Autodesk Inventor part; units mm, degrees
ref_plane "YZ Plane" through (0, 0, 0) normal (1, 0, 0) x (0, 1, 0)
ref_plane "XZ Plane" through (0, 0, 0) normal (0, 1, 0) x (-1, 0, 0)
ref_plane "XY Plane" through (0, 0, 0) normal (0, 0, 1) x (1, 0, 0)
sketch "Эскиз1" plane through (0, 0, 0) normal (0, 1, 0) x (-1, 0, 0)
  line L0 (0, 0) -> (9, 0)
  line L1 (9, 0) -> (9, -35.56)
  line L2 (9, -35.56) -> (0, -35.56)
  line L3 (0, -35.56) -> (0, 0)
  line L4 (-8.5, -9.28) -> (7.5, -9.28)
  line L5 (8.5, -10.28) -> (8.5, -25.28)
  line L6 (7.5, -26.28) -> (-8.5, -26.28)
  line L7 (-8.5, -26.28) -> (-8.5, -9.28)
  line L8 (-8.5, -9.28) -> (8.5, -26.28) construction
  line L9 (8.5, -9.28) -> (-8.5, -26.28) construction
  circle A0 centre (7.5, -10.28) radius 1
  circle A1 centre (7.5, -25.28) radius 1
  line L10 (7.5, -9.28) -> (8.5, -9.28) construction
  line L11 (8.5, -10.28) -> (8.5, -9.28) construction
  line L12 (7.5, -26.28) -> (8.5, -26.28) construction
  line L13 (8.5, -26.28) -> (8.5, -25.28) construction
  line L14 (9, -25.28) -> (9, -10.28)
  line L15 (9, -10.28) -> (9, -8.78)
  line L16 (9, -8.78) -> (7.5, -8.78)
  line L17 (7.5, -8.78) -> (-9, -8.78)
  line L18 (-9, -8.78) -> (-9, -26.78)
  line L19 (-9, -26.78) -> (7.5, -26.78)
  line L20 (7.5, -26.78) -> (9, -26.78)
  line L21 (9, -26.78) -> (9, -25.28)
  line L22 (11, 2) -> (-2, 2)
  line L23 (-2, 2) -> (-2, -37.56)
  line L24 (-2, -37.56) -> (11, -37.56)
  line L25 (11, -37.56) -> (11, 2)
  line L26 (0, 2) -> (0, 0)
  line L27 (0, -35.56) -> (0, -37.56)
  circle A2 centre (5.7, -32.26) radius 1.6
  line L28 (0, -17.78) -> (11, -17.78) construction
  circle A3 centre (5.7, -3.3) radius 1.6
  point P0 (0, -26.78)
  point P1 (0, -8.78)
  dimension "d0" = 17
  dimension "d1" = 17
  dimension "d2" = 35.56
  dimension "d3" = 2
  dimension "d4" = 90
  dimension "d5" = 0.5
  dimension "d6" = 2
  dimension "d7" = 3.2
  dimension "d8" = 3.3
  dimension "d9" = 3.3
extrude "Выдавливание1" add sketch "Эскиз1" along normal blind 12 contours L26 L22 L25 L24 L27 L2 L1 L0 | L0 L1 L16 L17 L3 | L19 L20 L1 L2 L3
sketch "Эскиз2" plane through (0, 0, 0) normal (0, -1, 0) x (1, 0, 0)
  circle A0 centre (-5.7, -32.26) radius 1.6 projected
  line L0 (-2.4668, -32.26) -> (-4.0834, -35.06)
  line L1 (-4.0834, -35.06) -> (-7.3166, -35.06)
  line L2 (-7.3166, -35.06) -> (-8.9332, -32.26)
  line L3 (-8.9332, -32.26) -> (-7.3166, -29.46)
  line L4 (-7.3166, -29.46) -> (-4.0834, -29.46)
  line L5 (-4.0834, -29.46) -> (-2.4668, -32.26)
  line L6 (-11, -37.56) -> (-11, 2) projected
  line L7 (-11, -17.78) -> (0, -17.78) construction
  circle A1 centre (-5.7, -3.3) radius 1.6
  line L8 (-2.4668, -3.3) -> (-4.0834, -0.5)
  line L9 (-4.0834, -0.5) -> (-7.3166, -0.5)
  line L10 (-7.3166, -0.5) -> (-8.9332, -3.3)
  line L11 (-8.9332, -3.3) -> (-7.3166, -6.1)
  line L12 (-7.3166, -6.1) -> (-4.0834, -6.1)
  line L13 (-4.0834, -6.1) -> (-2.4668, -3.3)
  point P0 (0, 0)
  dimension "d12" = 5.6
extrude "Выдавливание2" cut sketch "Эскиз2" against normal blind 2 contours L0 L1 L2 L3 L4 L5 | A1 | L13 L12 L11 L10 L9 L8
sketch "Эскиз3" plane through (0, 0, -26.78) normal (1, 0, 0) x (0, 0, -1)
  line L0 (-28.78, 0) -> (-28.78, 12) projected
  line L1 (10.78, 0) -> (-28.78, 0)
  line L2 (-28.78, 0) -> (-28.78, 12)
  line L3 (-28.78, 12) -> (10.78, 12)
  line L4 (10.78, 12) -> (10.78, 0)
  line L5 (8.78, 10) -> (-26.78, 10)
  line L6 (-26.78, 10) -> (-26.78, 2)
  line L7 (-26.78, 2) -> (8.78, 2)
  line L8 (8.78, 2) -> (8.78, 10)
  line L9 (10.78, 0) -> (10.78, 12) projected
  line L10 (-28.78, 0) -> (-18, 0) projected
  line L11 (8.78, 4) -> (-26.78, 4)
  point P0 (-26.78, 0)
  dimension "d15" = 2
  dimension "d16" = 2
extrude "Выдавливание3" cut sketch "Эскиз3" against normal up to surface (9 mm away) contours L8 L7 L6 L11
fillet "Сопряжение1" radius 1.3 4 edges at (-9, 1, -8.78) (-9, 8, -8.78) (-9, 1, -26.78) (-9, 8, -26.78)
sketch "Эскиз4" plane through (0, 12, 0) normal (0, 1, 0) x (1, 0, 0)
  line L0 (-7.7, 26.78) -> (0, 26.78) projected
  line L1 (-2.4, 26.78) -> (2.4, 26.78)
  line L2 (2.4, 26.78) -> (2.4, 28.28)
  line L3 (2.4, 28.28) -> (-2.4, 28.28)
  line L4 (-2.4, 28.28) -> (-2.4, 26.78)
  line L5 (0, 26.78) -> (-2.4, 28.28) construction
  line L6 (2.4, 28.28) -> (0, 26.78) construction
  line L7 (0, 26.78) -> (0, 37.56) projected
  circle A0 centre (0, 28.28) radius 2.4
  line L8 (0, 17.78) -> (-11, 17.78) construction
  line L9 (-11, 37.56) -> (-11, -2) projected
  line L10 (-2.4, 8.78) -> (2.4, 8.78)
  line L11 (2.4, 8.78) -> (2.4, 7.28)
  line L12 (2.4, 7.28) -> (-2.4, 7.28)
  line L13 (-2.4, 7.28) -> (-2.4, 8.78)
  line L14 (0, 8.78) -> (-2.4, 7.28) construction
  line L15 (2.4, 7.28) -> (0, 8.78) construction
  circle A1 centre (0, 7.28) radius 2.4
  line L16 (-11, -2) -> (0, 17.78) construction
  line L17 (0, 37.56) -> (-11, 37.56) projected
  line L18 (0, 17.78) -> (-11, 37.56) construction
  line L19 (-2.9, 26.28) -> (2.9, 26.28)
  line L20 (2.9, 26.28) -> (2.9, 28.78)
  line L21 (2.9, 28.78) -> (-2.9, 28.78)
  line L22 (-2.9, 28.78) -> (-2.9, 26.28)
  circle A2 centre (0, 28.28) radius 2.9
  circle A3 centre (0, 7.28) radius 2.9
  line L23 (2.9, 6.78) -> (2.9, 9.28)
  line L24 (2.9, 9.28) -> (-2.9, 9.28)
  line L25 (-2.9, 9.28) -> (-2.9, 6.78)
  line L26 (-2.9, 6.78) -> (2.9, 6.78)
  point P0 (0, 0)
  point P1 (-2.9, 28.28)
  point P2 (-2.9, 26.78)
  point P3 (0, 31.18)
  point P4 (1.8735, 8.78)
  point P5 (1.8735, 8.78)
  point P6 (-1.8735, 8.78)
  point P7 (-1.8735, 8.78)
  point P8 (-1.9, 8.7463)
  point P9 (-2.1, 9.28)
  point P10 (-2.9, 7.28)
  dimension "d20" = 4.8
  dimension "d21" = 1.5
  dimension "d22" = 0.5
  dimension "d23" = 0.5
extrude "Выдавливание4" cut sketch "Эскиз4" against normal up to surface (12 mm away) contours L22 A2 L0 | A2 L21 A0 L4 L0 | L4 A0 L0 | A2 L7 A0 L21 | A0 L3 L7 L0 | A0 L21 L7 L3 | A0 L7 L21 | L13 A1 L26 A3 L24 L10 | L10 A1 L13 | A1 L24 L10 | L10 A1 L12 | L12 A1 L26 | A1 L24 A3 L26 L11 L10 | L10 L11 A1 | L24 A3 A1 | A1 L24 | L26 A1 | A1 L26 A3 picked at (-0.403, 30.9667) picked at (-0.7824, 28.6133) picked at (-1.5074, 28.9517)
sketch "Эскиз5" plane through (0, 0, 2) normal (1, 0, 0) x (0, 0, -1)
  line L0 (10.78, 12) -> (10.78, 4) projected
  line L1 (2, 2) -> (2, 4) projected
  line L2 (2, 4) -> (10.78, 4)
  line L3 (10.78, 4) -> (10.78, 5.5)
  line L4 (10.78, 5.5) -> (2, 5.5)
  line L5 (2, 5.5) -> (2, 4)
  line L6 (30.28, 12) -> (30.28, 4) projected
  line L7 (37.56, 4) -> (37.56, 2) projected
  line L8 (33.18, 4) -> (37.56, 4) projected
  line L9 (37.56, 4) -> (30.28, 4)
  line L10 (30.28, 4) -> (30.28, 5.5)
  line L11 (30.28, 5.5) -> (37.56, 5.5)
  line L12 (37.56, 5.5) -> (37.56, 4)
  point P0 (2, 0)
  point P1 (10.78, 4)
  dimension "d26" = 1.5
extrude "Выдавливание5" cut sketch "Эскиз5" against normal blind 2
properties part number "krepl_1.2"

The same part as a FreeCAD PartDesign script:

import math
import FreeCAD as App
import Part
import Sketcher

V = App.Vector
Q = App.Units.Quantity


def edges_at(feature, points):
    """Names of the edges that pass closest to the given points."""
    edges = feature.Shape.Edges
    near = lambda p: min(range(len(edges)), key=lambda i: edges[i].distToShape(Part.Vertex(*p))[0])
    return sorted({f"Edge{near(p) + 1}" for p in points})

doc = App.newDocument("Part")
body = doc.addObject("PartDesign::Body", "Body")

sketch1 = body.newObject("Sketcher::SketchObject", "Sketch")
sketch1.AttachmentSupport = (doc.getObject("XZ_Plane"), [""])
sketch1.MapMode = "FlatFace"
sketch1.addGeometry(Part.LineSegment(V(0, 2, 0), V(0, -8.8, 0)), False)
sketch1.addGeometry(Part.LineSegment(V(0, -8.8, 0), V(-9, -8.8, 0)), False)
sketch1.addGeometry(Part.LineSegment(V(-9, -8.8, 0), V(-9, -26.8, 0)), False)
sketch1.addGeometry(Part.LineSegment(V(-9, -26.8, 0), V(0, -26.8, 0)), False)
sketch1.addGeometry(Part.LineSegment(V(0, -26.8, 0), V(0, -37.6, 0)), False)
sketch1.addGeometry(Part.LineSegment(V(0, -37.6, 0), V(-11, -37.6, 0)), False)
sketch1.addGeometry(Part.LineSegment(V(-11, -37.6, 0), V(-11, 2, 0)), False)
sketch1.addGeometry(Part.LineSegment(V(-11, 2, 0), V(0, 2, 0)), False)
sketch1.addGeometry(Part.Circle(V(-5.7, -32.3, 0), V(0, 0, 1), 1.6), False)
sketch1.addGeometry(Part.Circle(V(-5.7, -3.3, 0), V(0, 0, 1), 1.6), False)
sketch1.addConstraint(Sketcher.Constraint("Coincident", 0, 2, 1, 1))
sketch1.addConstraint(Sketcher.Constraint("Coincident", 1, 2, 2, 1))
sketch1.addConstraint(Sketcher.Constraint("Coincident", 2, 2, 3, 1))
sketch1.addConstraint(Sketcher.Constraint("Coincident", 3, 2, 4, 1))
sketch1.addConstraint(Sketcher.Constraint("Coincident", 4, 2, 5, 1))
sketch1.addConstraint(Sketcher.Constraint("Coincident", 5, 2, 6, 1))
sketch1.addConstraint(Sketcher.Constraint("Coincident", 6, 2, 7, 1))
sketch1.addConstraint(Sketcher.Constraint("Coincident", 7, 2, 0, 1))
sketch1.addConstraint(Sketcher.Constraint("Vertical", 0))
sketch1.addConstraint(Sketcher.Constraint("Horizontal", 1))
sketch1.addConstraint(Sketcher.Constraint("Vertical", 2))
sketch1.addConstraint(Sketcher.Constraint("Horizontal", 3))
sketch1.addConstraint(Sketcher.Constraint("Vertical", 4))
sketch1.addConstraint(Sketcher.Constraint("Horizontal", 5))
sketch1.addConstraint(Sketcher.Constraint("Vertical", 6))
sketch1.addConstraint(Sketcher.Constraint("Horizontal", 7))
sketch1.addConstraint(Sketcher.Constraint("Equal", 8, 9))
sketch1.addConstraint(Sketcher.Constraint("PointOnObject", 0, 2, -2))
sketch1.addConstraint(Sketcher.Constraint("PointOnObject", 3, 2, -2))
sketch1.addConstraint(Sketcher.Constraint("Vertical", 8, 3, 9, 3))
sketch1.addConstraint(Sketcher.Constraint("Equal", 0, 4))
sketch1.addConstraint(Sketcher.Constraint("Diameter", 8, 3.2))
sketch1.addConstraint(Sketcher.Constraint("DistanceY", -1, 1, 6, 2, 2.0))
sketch1.addConstraint(Sketcher.Constraint("DistanceX", 5, 2, 2, 2, 2.0))
sketch1.addConstraint(Sketcher.Constraint("DistanceY", 9, 3, -1, 1, 3.3))
sketch1.addConstraint(Sketcher.Constraint("DistanceX", 1, 2, 9, 3, 3.3))
sketch1.addConstraint(Sketcher.Constraint("DistanceX", 1, 2, 1, 1, 9.0))
sketch1.addConstraint(Sketcher.Constraint("DistanceY", 2, 2, 2, 1, 18.0))
sketch1.addConstraint(Sketcher.Constraint("DistanceY", 0, 2, 0, 1, 10.78))
sketch1.addConstraint(Sketcher.Constraint("DistanceY", 4, 2, 8, 3, 5.3))
pad1 = body.newObject("PartDesign::Pad", "Pad")
pad1.Profile = sketch1
pad1.Length = 12
pad1.Reversed = True

sketch2 = body.newObject("Sketcher::SketchObject", "Sketch001")
sketch2.AttachmentSupport = (doc.getObject("XZ_Plane"), [""])
sketch2.MapMode = "FlatFace"
sketch2.addGeometry(Part.LineSegment(V(-4.1, -35.1, 0), V(-2.5, -32.3, 0)), False)
sketch2.addGeometry(Part.LineSegment(V(-2.5, -32.3, 0), V(-4.1, -29.5, 0)), False)
sketch2.addGeometry(Part.LineSegment(V(-4.1, -29.5, 0), V(-7.3, -29.5, 0)), False)
sketch2.addGeometry(Part.LineSegment(V(-7.3, -29.5, 0), V(-8.9, -32.3, 0)), False)
sketch2.addGeometry(Part.LineSegment(V(-8.9, -32.3, 0), V(-7.3, -35.1, 0)), False)
sketch2.addGeometry(Part.LineSegment(V(-7.3, -35.1, 0), V(-4.1, -35.1, 0)), False)
sketch2.addGeometry(Part.Circle(V(-5.7, -32.3, 0), V(0, 0, 1), 1.6), False)
sketch2.addGeometry(Part.LineSegment(V(-4.1, -6.1, 0), V(-2.5, -3.3, 0)), False)
sketch2.addGeometry(Part.LineSegment(V(-2.5, -3.3, 0), V(-4.1, -0.5, 0)), False)
sketch2.addGeometry(Part.LineSegment(V(-4.1, -0.5, 0), V(-7.3, -0.5, 0)), False)
sketch2.addGeometry(Part.LineSegment(V(-7.3, -0.5, 0), V(-8.9, -3.3, 0)), False)
sketch2.addGeometry(Part.LineSegment(V(-8.9, -3.3, 0), V(-7.3, -6.1, 0)), False)
sketch2.addGeometry(Part.LineSegment(V(-7.3, -6.1, 0), V(-4.1, -6.1, 0)), False)
sketch2.addConstraint(Sketcher.Constraint("Coincident", 0, 2, 1, 1))
sketch2.addConstraint(Sketcher.Constraint("Coincident", 1, 2, 2, 1))
sketch2.addConstraint(Sketcher.Constraint("Coincident", 2, 2, 3, 1))
sketch2.addConstraint(Sketcher.Constraint("Coincident", 3, 2, 4, 1))
sketch2.addConstraint(Sketcher.Constraint("Coincident", 4, 2, 5, 1))
sketch2.addConstraint(Sketcher.Constraint("Coincident", 5, 2, 0, 1))
sketch2.addConstraint(Sketcher.Constraint("Coincident", 7, 2, 8, 1))
sketch2.addConstraint(Sketcher.Constraint("Coincident", 8, 2, 9, 1))
sketch2.addConstraint(Sketcher.Constraint("Coincident", 9, 2, 10, 1))
sketch2.addConstraint(Sketcher.Constraint("Coincident", 10, 2, 11, 1))
sketch2.addConstraint(Sketcher.Constraint("Coincident", 11, 2, 12, 1))
sketch2.addConstraint(Sketcher.Constraint("Coincident", 12, 2, 7, 1))
sketch2.addConstraint(Sketcher.Constraint("Horizontal", 2))
sketch2.addConstraint(Sketcher.Constraint("Horizontal", 5))
sketch2.addConstraint(Sketcher.Constraint("Horizontal", 9))
sketch2.addConstraint(Sketcher.Constraint("Horizontal", 12))
sketch2.addConstraint(Sketcher.Constraint("Parallel", 0, 3))
sketch2.addConstraint(Sketcher.Constraint("Parallel", 1, 4))
sketch2.addConstraint(Sketcher.Constraint("Parallel", 3, 7))
sketch2.addConstraint(Sketcher.Constraint("Parallel", 4, 8))
sketch2.addConstraint(Sketcher.Constraint("Parallel", 7, 10))
sketch2.addConstraint(Sketcher.Constraint("Parallel", 8, 11))
sketch2.addConstraint(Sketcher.Constraint("Horizontal", 6, 3, 0, 2))
sketch2.addConstraint(Sketcher.Constraint("Horizontal", 0, 2, 3, 2))
sketch2.addConstraint(Sketcher.Constraint("Horizontal", 7, 2, 10, 2))
sketch2.addConstraint(Sketcher.Constraint("Vertical", 2, 2, 4, 2))
sketch2.addConstraint(Sketcher.Constraint("Vertical", 1, 2, 5, 2))
sketch2.addConstraint(Sketcher.Constraint("Vertical", 0, 2, 7, 2))
sketch2.addConstraint(Sketcher.Constraint("Vertical", 5, 2, 8, 2))
sketch2.addConstraint(Sketcher.Constraint("Vertical", 4, 2, 9, 2))
sketch2.addConstraint(Sketcher.Constraint("Vertical", 9, 2, 11, 2))
sketch2.addConstraint(Sketcher.Constraint("Diameter", 6, 3.2))
sketch2.addConstraint(Sketcher.Constraint("DistanceY", 4, 2, 2, 2, 5.6))
sketch2.addConstraint(Sketcher.Constraint("Angle", 0, Q("59.9997 deg")))
sketch2.addConstraint(Sketcher.Constraint("DistanceX", 6, 3, -1, 1, 5.7))
sketch2.addConstraint(Sketcher.Constraint("DistanceY", 7, 2, -1, 1, 3.3))
sketch2.addConstraint(Sketcher.Constraint("DistanceY", 6, 3, -1, 1, 32.26))
sketch2.addConstraint(Sketcher.Constraint("DistanceX", 2, 2, 2, 1, 3.2332))
sketch2.addConstraint(Sketcher.Constraint("DistanceX", 0, 2, -1, 1, 2.4668))
pocket1 = body.newObject("PartDesign::Pocket", "Pocket")
pocket1.Profile = sketch2
pocket1.Length = 2

sketch3 = body.newObject("Sketcher::SketchObject", "Sketch002")
sketch3.AttachmentSupport = (doc.getObject("YZ_Plane"), [""])
sketch3.MapMode = "FlatFace"
sketch3.addGeometry(Part.LineSegment(V(2, -35.6, 0), V(4, -35.6, 0)), False)
sketch3.addGeometry(Part.LineSegment(V(4, -35.6, 0), V(4, 0, 0)), False)
sketch3.addGeometry(Part.LineSegment(V(4, 0, 0), V(2, 0, 0)), False)
sketch3.addGeometry(Part.LineSegment(V(2, 0, 0), V(2, -35.6, 0)), False)
sketch3.addConstraint(Sketcher.Constraint("Coincident", 0, 2, 1, 1))
sketch3.addConstraint(Sketcher.Constraint("Coincident", 1, 2, 2, 1))
sketch3.addConstraint(Sketcher.Constraint("Coincident", 2, 2, 3, 1))
sketch3.addConstraint(Sketcher.Constraint("Coincident", 3, 2, 0, 1))
sketch3.addConstraint(Sketcher.Constraint("Horizontal", 0))
sketch3.addConstraint(Sketcher.Constraint("Vertical", 1))
sketch3.addConstraint(Sketcher.Constraint("Horizontal", 2))
sketch3.addConstraint(Sketcher.Constraint("Vertical", 3))
sketch3.addConstraint(Sketcher.Constraint("PointOnObject", 1, 2, -1))
sketch3.addConstraint(Sketcher.Constraint("DistanceX", 0, 1, 0, 2, 2.0))
sketch3.addConstraint(Sketcher.Constraint("DistanceX", -1, 1, 2, 2, 2.0))
sketch3.addConstraint(Sketcher.Constraint("DistanceY", 1, 1, 1, 2, 35.56))
pocket2 = body.newObject("PartDesign::Pocket", "Pocket001")
pocket2.Profile = sketch3
pocket2.Length = 9
doc.recompute()

fillet = body.newObject("PartDesign::Fillet", "Fillet")
fillet.Base = (pocket2, edges_at(pocket2, [
    (-9, 1, -8.78),
    (-9, 8, -8.78),
    (-9, 1, -26.78),
    (-9, 8, -26.78),
]))
fillet.Radius = 1.3

sketch4 = body.newObject("Sketcher::SketchObject", "Sketch003")
sketch4.AttachmentSupport = (doc.getObject("XZ_Plane"), [""])
sketch4.MapMode = "FlatFace"
sketch4.AttachmentOffset = App.Placement(V(0, 0, -12), App.Rotation())
sketch4.addGeometry(Part.LineSegment(V(-2.9, -28.3, 0), V(-2.9, -26.8, 0)), False)
sketch4.addGeometry(Part.LineSegment(V(-2.9, -26.8, 0), V(0, -26.8, 0)), False)
sketch4.addGeometry(Part.LineSegment(V(0, -26.8, 0), V(0, -31.2, 0)), False)
sketch4.addGeometry(Part.ArcOfCircle(Part.Circle(V(0, -28.3, 0), V(0, 0, 1), 2.9), math.radians(180), math.radians(270)), False)
sketch4.addGeometry(Part.Circle(V(0, -7.3, 0), V(0, 0, 1), 2.9), False)
sketch4.addConstraint(Sketcher.Constraint("Coincident", 0, 2, 1, 1))
sketch4.addConstraint(Sketcher.Constraint("Coincident", 1, 2, 2, 1))
sketch4.addConstraint(Sketcher.Constraint("Coincident", 2, 2, 3, 2))
sketch4.addConstraint(Sketcher.Constraint("Tangent", 3, 1, 0, 1))
sketch4.addConstraint(Sketcher.Constraint("Vertical", 0))
sketch4.addConstraint(Sketcher.Constraint("Horizontal", 1))
sketch4.addConstraint(Sketcher.Constraint("Vertical", 2))
sketch4.addConstraint(Sketcher.Constraint("Equal", 3, 4))
sketch4.addConstraint(Sketcher.Constraint("PointOnObject", 3, 3, -2))
sketch4.addConstraint(Sketcher.Constraint("PointOnObject", 4, 3, -2))
sketch4.addConstraint(Sketcher.Constraint("PointOnObject", 1, 2, -2))
sketch4.addConstraint(Sketcher.Constraint("DistanceY", 0, 1, 0, 2, 1.5))
sketch4.addConstraint(Sketcher.Constraint("Diameter", 4, 5.8))
sketch4.addConstraint(Sketcher.Constraint("DistanceY", 3, 3, 4, 3, 21.0))
sketch4.addConstraint(Sketcher.Constraint("DistanceY", 3, 3, -1, 1, 28.28))
pocket3 = body.newObject("PartDesign::Pocket", "Pocket002")
pocket3.Profile = sketch4
pocket3.Length = 12
pocket3.Reversed = True

sketch5 = body.newObject("Sketcher::SketchObject", "Sketch004")
sketch5.AttachmentSupport = (doc.getObject("YZ_Plane"), [""])
sketch5.MapMode = "FlatFace"
sketch5.addGeometry(Part.LineSegment(V(4, -8.8, 0), V(5.5, -8.8, 0)), False)
sketch5.addGeometry(Part.LineSegment(V(5.5, -8.8, 0), V(5.5, 0, 0)), False)
sketch5.addGeometry(Part.LineSegment(V(5.5, 0, 0), V(4, 0, 0)), False)
sketch5.addGeometry(Part.LineSegment(V(4, 0, 0), V(4, -8.8, 0)), False)
sketch5.addGeometry(Part.LineSegment(V(5.5, -35.6, 0), V(5.5, -28.3, 0)), False)
sketch5.addGeometry(Part.LineSegment(V(5.5, -28.3, 0), V(4, -28.3, 0)), False)
sketch5.addGeometry(Part.LineSegment(V(4, -28.3, 0), V(4, -35.6, 0)), False)
sketch5.addGeometry(Part.LineSegment(V(4, -35.6, 0), V(5.5, -35.6, 0)), False)
sketch5.addConstraint(Sketcher.Constraint("Coincident", 0, 2, 1, 1))
sketch5.addConstraint(Sketcher.Constraint("Coincident", 1, 2, 2, 1))
sketch5.addConstraint(Sketcher.Constraint("Coincident", 2, 2, 3, 1))
sketch5.addConstraint(Sketcher.Constraint("Coincident", 3, 2, 0, 1))
sketch5.addConstraint(Sketcher.Constraint("Coincident", 4, 2, 5, 1))
sketch5.addConstraint(Sketcher.Constraint("Coincident", 5, 2, 6, 1))
sketch5.addConstraint(Sketcher.Constraint("Coincident", 6, 2, 7, 1))
sketch5.addConstraint(Sketcher.Constraint("Coincident", 7, 2, 4, 1))
sketch5.addConstraint(Sketcher.Constraint("Horizontal", 0))
sketch5.addConstraint(Sketcher.Constraint("Vertical", 1))
sketch5.addConstraint(Sketcher.Constraint("Horizontal", 2))
sketch5.addConstraint(Sketcher.Constraint("Vertical", 3))
sketch5.addConstraint(Sketcher.Constraint("Vertical", 4))
sketch5.addConstraint(Sketcher.Constraint("Horizontal", 5))
sketch5.addConstraint(Sketcher.Constraint("Vertical", 6))
sketch5.addConstraint(Sketcher.Constraint("Horizontal", 7))
sketch5.addConstraint(Sketcher.Constraint("PointOnObject", 1, 2, -1))
sketch5.addConstraint(Sketcher.Constraint("Vertical", 1, 2, 4, 2))
sketch5.addConstraint(Sketcher.Constraint("Vertical", 3, 2, 5, 2))
sketch5.addConstraint(Sketcher.Constraint("DistanceX", 0, 1, 0, 2, 1.5))
sketch5.addConstraint(Sketcher.Constraint("DistanceX", -1, 1, 2, 2, 4.0))
sketch5.addConstraint(Sketcher.Constraint("DistanceY", 1, 1, 1, 2, 8.78))
sketch5.addConstraint(Sketcher.Constraint("DistanceY", 4, 1, 4, 2, 7.28))
sketch5.addConstraint(Sketcher.Constraint("DistanceY", 4, 2, 0, 2, 19.5))
pocket4 = body.newObject("PartDesign::Pocket", "Pocket003")
pocket4.Profile = sketch5
pocket4.Length = 2

doc.recompute()
